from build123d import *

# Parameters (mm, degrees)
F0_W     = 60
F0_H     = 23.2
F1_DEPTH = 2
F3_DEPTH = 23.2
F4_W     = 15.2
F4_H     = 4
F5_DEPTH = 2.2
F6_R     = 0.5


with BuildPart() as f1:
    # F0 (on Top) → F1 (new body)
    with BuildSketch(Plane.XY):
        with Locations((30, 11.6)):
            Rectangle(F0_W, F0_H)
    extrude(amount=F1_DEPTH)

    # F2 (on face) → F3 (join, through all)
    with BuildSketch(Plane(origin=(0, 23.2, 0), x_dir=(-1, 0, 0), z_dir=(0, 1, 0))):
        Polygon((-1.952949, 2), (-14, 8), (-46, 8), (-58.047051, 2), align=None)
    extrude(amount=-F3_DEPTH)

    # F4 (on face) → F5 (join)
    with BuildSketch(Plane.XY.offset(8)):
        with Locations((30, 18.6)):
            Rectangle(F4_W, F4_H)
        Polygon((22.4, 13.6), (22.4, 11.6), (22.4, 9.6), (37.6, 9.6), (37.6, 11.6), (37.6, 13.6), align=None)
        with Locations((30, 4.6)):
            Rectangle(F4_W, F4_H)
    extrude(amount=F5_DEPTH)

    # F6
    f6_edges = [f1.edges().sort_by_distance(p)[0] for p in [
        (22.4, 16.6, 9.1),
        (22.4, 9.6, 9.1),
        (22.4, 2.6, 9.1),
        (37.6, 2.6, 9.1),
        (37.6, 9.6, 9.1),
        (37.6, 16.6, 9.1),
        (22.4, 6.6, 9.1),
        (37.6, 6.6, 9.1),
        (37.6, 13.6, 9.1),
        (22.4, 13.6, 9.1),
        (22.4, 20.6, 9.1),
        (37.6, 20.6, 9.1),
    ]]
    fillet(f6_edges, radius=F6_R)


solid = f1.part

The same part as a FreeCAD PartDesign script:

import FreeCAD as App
import Part
import Sketcher
from FreeCAD import Vector


def edges_at(feature, points):
    """Names of the edges that pass closest to the given points."""
    edges = feature.Shape.Edges
    near = lambda p: min(range(len(edges)), key=lambda i: edges[i].distToShape(Part.Vertex(*p))[0])
    return sorted({f"Edge{near(p) + 1}" for p in points})


def add_polygon(sketch, points):
    """Adds a closed chain of lines whose ends are joined by coincident constraints."""
    first, n = sketch.GeometryCount, len(points)
    for a, b in zip(points, points[1:] + points[:1]):
        sketch.addGeometry(Part.LineSegment(App.Vector(*a, 0), App.Vector(*b, 0)), False)
    for i in range(n):
        sketch.addConstraint(Sketcher.Constraint("Coincident", first + i, 2, first + (i + 1) % n, 1))

doc = App.newDocument("Part")
body = doc.addObject("PartDesign::Body", "Body")

# Sketch on XY plane
sketch1 = body.newObject("Sketcher::SketchObject", "Sketch")
sketch1.AttachmentSupport = (doc.getObject("XY_Plane"), [""])
sketch1.MapMode = "FlatFace"
add_polygon(sketch1, [(0, 23), (0, 0), (60, 0), (60, 23)])  # lines 0-3
sketch1.addConstraint([
    Sketcher.Constraint("Vertical", 0),
    Sketcher.Constraint("Horizontal", 1),
    Sketcher.Constraint("Vertical", 2),
    Sketcher.Constraint("Horizontal", 3),
    Sketcher.Constraint("Coincident", 0, 2, -1, 1),
    Sketcher.Constraint("DistanceX", 1, 1, 1, 2, 60.0),
    Sketcher.Constraint("DistanceY", 0, 2, 0, 1, 23.2),
])
pad1 = body.newObject("PartDesign::Pad", "Pad")
pad1.Profile = sketch1
pad1.Length = 2

# Sketch on XZ plane
sketch2 = body.newObject("Sketcher::SketchObject", "Sketch001")
sketch2.AttachmentSupport = (doc.getObject("XZ_Plane"), [""])
sketch2.MapMode = "FlatFace"
sketch2.AttachmentOffset = App.Placement(Vector(0, 0, -23.2), App.Rotation())
add_polygon(sketch2, [(2, 2), (14, 8), (46, 8), (58, 2)])  # lines 0-3
sketch2.addConstraint([
    Sketcher.Constraint("Horizontal", 1),
    Sketcher.Constraint("Horizontal", 3),
    Sketcher.Constraint("Equal", 0, 2),
    Sketcher.Constraint("DistanceX", 1, 1, 1, 2, 32.0),
    Sketcher.Constraint("DistanceX", -1, 1, 0, 2, 14.0),
    Sketcher.Constraint("DistanceY", -1, 1, 0, 2, 8.0),
    Sketcher.Constraint("DistanceY", -1, 1, 2, 2, 2.0),
    Sketcher.Constraint("Distance", 0, 13.458508),
])
pad2 = body.newObject("PartDesign::Pad", "Pad001")
pad2.Profile = sketch2
pad2.Length = 23.2

# Sketch on XY plane
sketch3 = body.newObject("Sketcher::SketchObject", "Sketch002")
sketch3.AttachmentSupport = (doc.getObject("XY_Plane"), [""])
sketch3.MapMode = "FlatFace"
sketch3.AttachmentOffset = App.Placement(Vector(0, 0, 8), App.Rotation())
add_polygon(sketch3, [(22.4, 20.6), (22.4, 16.6), (37.6, 16.6), (37.6, 20.6)])  # lines 0-3
add_polygon(sketch3, [(22.4, 13.6), (22.4, 9.6), (37.6, 9.6), (37.6, 13.6)])  # lines 4-7
add_polygon(sketch3, [(22.4, 6.6), (22.4, 2.6), (37.6, 2.6), (37.6, 6.6)])  # lines 8-11
sketch3.addConstraint([
    Sketcher.Constraint("Vertical", 0),
    Sketcher.Constraint("Horizontal", 1),
    Sketcher.Constraint("Vertical", 2),
    Sketcher.Constraint("Horizontal", 3),
    Sketcher.Constraint("Vertical", 4),
    Sketcher.Constraint("Horizontal", 5),
    Sketcher.Constraint("Vertical", 6),
    Sketcher.Constraint("Horizontal", 7),
    Sketcher.Constraint("Vertical", 8),
    Sketcher.Constraint("Horizontal", 9),
    Sketcher.Constraint("Vertical", 10),
    Sketcher.Constraint("Horizontal", 11),
    Sketcher.Constraint("Vertical", 3, 2, 4, 2),
    Sketcher.Constraint("Vertical", 2, 2, 5, 2),
    Sketcher.Constraint("Vertical", 7, 2, 8, 2),
    Sketcher.Constraint("Vertical", 6, 2, 9, 2),
    Sketcher.Constraint("Equal", 2, 4),
    Sketcher.Constraint("Equal", 6, 8),
    Sketcher.Constraint("DistanceY", 0, 2, 0, 1, 4.0),
    Sketcher.Constraint("DistanceX", 1, 1, 1, 2, 15.2),
    Sketcher.Constraint("DistanceY", 4, 2, 0, 2, 7.0),
    Sketcher.Constraint("DistanceY", 8, 2, 4, 2, 7.0),
    Sketcher.Constraint("DistanceX", -1, 1, 0, 2, 22.4),
    Sketcher.Constraint("DistanceY", -1, 1, 0, 2, 16.6),
])
pad3 = body.newObject("PartDesign::Pad", "Pad002")
pad3.Profile = sketch3
pad3.Length = 2.2
doc.recompute()

fillet = body.newObject("PartDesign::Fillet", "Fillet")
fillet.Base = (pad3, edges_at(pad3, [
    (22.4, 16.6, 9.1),
    (22.4, 9.6, 9.1),
    (22.4, 2.6, 9.1),
    (37.6, 2.6, 9.1),
    (37.6, 9.6, 9.1),
    (37.6, 16.6, 9.1),
    (22.4, 6.6, 9.1),
    (37.6, 6.6, 9.1),
    (37.6, 13.6, 9.1),
    (22.4, 13.6, 9.1),
    (22.4, 20.6, 9.1),
    (37.6, 20.6, 9.1),
]))
fillet.Radius = 0.5

doc.recompute()
